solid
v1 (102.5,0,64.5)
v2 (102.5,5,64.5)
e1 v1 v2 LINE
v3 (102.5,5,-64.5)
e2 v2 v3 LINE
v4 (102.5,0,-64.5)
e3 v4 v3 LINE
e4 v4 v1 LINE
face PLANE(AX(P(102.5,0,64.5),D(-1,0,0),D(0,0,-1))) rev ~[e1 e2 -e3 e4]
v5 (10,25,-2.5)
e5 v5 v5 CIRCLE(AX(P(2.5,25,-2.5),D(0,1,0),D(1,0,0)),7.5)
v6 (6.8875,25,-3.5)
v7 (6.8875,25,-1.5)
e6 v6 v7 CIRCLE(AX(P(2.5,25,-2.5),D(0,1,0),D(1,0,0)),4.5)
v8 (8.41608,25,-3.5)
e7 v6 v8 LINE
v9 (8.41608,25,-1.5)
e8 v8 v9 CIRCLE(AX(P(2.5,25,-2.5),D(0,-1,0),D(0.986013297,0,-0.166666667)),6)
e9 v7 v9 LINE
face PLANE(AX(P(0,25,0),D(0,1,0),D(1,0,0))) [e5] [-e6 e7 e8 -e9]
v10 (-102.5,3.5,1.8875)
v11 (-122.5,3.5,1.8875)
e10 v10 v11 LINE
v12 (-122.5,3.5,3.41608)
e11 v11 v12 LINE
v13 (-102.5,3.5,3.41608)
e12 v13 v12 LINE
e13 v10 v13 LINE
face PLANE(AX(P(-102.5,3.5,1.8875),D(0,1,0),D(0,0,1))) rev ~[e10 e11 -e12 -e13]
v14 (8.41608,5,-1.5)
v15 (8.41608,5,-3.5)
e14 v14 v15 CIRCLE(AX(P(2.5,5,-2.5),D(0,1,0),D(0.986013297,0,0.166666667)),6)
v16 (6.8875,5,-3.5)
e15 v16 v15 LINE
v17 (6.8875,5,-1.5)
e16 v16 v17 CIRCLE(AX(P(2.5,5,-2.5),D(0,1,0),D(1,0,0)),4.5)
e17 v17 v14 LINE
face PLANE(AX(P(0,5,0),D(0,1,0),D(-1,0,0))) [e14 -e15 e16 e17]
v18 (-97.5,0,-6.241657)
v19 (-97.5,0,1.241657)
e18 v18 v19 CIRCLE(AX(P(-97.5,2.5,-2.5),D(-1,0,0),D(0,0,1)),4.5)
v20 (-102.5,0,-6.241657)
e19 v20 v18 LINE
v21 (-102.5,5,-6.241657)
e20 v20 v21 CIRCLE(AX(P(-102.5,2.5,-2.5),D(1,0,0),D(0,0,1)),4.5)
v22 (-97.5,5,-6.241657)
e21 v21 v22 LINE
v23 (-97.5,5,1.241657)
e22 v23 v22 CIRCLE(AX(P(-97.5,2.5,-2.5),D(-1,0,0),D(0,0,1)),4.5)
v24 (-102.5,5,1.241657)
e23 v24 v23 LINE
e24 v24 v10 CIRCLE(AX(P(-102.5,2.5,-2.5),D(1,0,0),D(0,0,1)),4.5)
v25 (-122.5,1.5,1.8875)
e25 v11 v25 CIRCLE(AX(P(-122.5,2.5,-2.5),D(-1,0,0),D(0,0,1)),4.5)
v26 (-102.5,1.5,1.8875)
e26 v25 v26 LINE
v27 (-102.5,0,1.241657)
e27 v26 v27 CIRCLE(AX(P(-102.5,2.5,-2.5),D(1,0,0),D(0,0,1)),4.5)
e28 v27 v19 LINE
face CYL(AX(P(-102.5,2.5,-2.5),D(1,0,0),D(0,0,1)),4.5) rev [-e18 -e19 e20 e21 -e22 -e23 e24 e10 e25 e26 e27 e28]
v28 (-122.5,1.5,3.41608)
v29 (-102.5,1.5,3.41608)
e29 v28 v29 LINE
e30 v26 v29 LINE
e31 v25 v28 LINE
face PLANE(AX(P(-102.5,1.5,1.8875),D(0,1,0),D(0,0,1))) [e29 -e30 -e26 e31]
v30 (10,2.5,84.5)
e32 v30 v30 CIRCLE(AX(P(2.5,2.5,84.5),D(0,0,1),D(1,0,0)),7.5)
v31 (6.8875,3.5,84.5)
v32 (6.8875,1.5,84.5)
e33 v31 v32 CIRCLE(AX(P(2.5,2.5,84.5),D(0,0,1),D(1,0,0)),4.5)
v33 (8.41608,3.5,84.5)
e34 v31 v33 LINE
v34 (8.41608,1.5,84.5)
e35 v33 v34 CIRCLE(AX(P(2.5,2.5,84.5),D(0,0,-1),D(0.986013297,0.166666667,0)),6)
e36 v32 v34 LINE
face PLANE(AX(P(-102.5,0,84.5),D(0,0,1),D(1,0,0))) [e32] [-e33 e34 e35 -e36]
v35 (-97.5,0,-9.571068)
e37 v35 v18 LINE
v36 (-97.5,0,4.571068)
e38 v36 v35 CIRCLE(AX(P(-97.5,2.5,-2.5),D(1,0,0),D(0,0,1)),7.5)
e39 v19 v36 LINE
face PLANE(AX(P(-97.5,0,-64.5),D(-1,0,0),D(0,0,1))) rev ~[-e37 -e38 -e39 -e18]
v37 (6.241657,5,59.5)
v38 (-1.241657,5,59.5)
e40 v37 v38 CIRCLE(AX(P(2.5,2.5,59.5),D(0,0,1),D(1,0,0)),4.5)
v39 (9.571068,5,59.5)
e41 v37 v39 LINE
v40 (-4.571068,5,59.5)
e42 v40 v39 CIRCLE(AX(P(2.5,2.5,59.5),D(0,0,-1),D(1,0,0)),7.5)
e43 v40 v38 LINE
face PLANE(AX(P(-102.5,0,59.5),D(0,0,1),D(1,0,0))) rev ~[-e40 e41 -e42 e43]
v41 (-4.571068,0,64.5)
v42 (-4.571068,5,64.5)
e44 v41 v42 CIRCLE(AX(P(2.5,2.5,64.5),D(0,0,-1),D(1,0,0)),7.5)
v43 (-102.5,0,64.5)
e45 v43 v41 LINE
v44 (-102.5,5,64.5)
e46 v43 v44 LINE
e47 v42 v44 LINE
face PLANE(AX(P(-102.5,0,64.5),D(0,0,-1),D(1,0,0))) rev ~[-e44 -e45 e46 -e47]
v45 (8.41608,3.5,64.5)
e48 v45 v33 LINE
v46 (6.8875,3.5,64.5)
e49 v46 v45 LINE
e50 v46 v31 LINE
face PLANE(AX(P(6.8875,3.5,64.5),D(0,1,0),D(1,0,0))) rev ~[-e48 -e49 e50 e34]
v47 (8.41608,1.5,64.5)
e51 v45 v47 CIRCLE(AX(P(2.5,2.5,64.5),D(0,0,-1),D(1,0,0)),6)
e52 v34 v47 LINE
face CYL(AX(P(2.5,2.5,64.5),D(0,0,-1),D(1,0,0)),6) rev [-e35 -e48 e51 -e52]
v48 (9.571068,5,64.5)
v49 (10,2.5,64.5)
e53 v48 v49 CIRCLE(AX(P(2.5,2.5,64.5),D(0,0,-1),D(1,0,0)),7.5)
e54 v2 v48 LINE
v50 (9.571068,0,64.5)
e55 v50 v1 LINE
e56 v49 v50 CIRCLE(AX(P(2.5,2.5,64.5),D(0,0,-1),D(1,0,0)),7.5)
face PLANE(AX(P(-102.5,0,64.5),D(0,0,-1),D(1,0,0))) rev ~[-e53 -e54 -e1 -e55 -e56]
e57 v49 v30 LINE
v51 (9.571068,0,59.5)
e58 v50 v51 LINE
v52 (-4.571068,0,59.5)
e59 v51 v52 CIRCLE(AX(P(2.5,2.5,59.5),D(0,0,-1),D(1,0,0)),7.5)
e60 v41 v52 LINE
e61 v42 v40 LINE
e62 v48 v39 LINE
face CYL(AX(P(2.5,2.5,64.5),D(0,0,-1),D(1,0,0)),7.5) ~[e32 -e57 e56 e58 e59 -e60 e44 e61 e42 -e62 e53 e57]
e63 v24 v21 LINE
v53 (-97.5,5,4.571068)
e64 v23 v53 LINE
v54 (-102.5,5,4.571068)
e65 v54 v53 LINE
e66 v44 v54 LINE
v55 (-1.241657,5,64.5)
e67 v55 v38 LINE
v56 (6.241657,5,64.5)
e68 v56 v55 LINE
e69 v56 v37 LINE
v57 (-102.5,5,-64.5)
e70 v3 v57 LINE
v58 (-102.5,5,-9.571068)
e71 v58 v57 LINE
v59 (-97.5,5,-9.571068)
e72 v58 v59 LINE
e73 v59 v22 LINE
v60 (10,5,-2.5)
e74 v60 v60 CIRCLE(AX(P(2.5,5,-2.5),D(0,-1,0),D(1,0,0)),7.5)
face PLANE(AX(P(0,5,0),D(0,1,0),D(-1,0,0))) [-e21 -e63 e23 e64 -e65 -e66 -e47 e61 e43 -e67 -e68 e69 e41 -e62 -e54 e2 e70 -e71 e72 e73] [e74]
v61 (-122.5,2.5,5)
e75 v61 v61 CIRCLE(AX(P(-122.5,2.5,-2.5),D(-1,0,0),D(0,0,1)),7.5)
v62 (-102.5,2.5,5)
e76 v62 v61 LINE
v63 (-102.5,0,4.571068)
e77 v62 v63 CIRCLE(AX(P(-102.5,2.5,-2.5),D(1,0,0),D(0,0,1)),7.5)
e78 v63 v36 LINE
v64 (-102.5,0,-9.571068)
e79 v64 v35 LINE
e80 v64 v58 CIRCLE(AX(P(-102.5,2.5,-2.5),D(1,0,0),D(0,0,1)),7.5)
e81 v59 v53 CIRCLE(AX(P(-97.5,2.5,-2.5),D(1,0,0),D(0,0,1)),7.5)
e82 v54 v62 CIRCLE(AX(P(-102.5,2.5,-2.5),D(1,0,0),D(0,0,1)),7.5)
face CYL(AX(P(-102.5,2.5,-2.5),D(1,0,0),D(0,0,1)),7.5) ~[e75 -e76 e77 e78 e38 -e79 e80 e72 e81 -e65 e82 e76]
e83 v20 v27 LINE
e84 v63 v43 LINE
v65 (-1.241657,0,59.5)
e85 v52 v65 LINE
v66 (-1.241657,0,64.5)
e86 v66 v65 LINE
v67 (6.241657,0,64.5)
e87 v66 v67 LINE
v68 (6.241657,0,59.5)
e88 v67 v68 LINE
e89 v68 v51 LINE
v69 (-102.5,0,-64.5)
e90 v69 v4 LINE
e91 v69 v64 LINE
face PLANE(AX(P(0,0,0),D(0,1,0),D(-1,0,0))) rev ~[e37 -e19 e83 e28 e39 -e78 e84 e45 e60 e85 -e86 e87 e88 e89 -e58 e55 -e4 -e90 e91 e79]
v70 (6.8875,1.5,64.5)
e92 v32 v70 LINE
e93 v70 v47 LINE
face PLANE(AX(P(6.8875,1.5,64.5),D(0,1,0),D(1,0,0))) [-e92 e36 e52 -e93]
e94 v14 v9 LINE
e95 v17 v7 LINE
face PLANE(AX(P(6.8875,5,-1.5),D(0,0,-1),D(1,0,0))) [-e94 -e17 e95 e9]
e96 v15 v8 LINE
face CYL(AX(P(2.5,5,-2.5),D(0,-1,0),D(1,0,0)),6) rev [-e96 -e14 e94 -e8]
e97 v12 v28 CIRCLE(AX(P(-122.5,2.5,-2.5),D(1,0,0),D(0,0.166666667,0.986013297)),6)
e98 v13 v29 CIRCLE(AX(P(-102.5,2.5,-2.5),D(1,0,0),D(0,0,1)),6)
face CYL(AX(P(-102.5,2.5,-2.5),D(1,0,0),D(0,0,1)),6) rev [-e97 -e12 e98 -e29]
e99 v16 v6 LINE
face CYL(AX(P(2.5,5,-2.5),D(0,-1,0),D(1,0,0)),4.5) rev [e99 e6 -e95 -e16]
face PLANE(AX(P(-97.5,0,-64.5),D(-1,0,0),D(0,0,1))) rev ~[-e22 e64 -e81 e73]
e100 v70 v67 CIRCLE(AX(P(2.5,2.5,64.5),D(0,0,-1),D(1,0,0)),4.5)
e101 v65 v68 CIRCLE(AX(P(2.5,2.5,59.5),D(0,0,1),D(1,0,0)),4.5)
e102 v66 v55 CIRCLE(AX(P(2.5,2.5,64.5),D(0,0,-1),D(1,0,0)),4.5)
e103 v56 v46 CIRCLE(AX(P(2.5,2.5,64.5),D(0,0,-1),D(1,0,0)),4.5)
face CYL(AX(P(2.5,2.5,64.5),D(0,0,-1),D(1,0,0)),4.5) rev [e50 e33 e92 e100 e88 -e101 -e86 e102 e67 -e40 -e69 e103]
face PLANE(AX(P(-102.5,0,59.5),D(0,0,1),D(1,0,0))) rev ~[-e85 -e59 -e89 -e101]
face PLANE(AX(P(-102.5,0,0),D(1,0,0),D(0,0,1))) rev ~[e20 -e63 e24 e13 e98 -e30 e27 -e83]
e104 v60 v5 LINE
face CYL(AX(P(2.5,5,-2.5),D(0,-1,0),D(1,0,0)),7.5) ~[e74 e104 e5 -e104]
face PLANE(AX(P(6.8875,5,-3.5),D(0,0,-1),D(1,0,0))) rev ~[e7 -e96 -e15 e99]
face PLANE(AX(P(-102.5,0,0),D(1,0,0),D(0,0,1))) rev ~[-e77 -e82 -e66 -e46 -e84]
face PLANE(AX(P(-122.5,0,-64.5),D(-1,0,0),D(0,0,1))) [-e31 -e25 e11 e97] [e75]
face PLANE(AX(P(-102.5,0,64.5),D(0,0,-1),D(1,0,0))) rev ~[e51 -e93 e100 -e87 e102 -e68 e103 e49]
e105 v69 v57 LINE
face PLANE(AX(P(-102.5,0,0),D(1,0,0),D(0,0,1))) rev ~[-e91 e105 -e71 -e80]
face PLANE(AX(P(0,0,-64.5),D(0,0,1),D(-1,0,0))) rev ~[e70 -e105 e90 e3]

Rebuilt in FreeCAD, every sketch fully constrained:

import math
import FreeCAD as App
import Part
import Sketcher
from FreeCAD import Vector


def add_polygon(sketch, points):
    """Adds a closed chain of lines whose ends are joined by coincident constraints."""
    first, n = sketch.GeometryCount, len(points)
    for a, b in zip(points, points[1:] + points[:1]):
        sketch.addGeometry(Part.LineSegment(App.Vector(*a, 0), App.Vector(*b, 0)), False)
    for i in range(n):
        sketch.addConstraint(Sketcher.Constraint("Coincident", first + i, 2, first + (i + 1) % n, 1))

doc = App.newDocument("Part")
body = doc.addObject("PartDesign::Body", "Body")

# Sketch on XZ plane
sketch1 = body.newObject("Sketcher::SketchObject", "Sketch")
sketch1.AttachmentSupport = (doc.getObject("XZ_Plane"), [""])
sketch1.MapMode = "FlatFace"
add_polygon(sketch1, [(-102, 64), (102, 64), (102, -64), (-102, -64)])  # lines 0-3
sketch1.addConstraint(Sketcher.Constraint("Horizontal", 0))
sketch1.addConstraint(Sketcher.Constraint("Vertical", 1))
sketch1.addConstraint(Sketcher.Constraint("Horizontal", 2))
sketch1.addConstraint(Sketcher.Constraint("Vertical", 3))
sketch1.addConstraint(Sketcher.Constraint("Symmetric", 0, 2, 2, 2, -1, 1))
sketch1.addConstraint(Sketcher.Constraint("DistanceX", 0, 1, 0, 2, 205.0))
sketch1.addConstraint(Sketcher.Constraint("DistanceY", 1, 2, 1, 1, 129.0))
pad1 = body.newObject("PartDesign::Pad", "Pad")
pad1.Profile = sketch1
pad1.Length = 5
pad1.Reversed = True

# Sketch on XZ plane
sketch2 = body.newObject("Sketcher::SketchObject", "Sketch001")
sketch2.AttachmentSupport = (doc.getObject("XZ_Plane"), [""])
sketch2.MapMode = "FlatFace"
sketch2.AttachmentOffset = App.Placement(Vector(0, 0, -5), App.Rotation())
sketch2.addGeometry(Part.Circle(Vector(2.5, -2.5, 0), Vector(0, 0, 1), 7.5), False)
sketch2.addGeometry(Part.ArcOfCircle(Part.Circle(Vector(2.5, -2.5, 0), Vector(0, 0, 1), 4.5), math.radians(13), math.radians(347)), False)
sketch2.addGeometry(Part.LineSegment(Vector(6.9, -3.5, 0), Vector(8.4, -3.5, 0)), False)
sketch2.addGeometry(Part.ArcOfCircle(Part.Circle(Vector(2.5, -2.5, 0), Vector(0, 0, 1), 6), math.radians(-9.59), math.radians(9.59)), False)
sketch2.addGeometry(Part.LineSegment(Vector(8.4, -1.5, 0), Vector(6.9, -1.5, 0)), False)
sketch2.addConstraint(Sketcher.Constraint("Coincident", 1, 2, 2, 1))
sketch2.addConstraint(Sketcher.Constraint("Coincident", 2, 2, 3, 1))
sketch2.addConstraint(Sketcher.Constraint("Coincident", 3, 2, 4, 1))
sketch2.addConstraint(Sketcher.Constraint("Coincident", 4, 2, 1, 1))
sketch2.addConstraint(Sketcher.Constraint("Horizontal", 2))
sketch2.addConstraint(Sketcher.Constraint("Horizontal", 4))
sketch2.addConstraint(Sketcher.Constraint("Coincident", 1, 3, 0, 3))
sketch2.addConstraint(Sketcher.Constraint("Coincident", 3, 3, 0, 3))
sketch2.addConstraint(Sketcher.Constraint("Vertical", 2, 2, 3, 2))
sketch2.addConstraint(Sketcher.Constraint("Diameter", 0, 15.0))
sketch2.addConstraint(Sketcher.Constraint("Radius", 3, 6.0))
sketch2.addConstraint(Sketcher.Constraint("Radius", 1, 4.5))
sketch2.addConstraint(Sketcher.Constraint("DistanceY", 1, 2, 0, 3, 1.0))
sketch2.addConstraint(Sketcher.Constraint("DistanceX", -1, 1, 0, 3, 2.5))
sketch2.addConstraint(Sketcher.Constraint("DistanceY", 0, 3, -1, 1, 2.5))
pad2 = body.newObject("PartDesign::Pad", "Pad001")
pad2.Profile = sketch2
pad2.Length = 20
pad2.Reversed = True

# Sketch on XY plane
sketch3 = body.newObject("Sketcher::SketchObject", "Sketch002")
sketch3.AttachmentSupport = (doc.getObject("XY_Plane"), [""])
sketch3.MapMode = "FlatFace"
sketch3.AttachmentOffset = App.Placement(Vector(0, 0, 64.5), App.Rotation())
sketch3.addGeometry(Part.Circle(Vector(2.5, 2.5, 0), Vector(0, 0, 1), 7.5), False)
sketch3.addGeometry(Part.ArcOfCircle(Part.Circle(Vector(2.5, 2.5, 0), Vector(0, 0, 1), 4.5), math.radians(13), math.radians(347)), False)
sketch3.addGeometry(Part.LineSegment(Vector(6.9, 3.5, 0), Vector(8.4, 3.5, 0)), False)
sketch3.addGeometry(Part.ArcOfCircle(Part.Circle(Vector(2.5, 2.5, 0), Vector(0, 0, 1), 6), math.radians(-9.59), math.radians(9.59)), False)
sketch3.addGeometry(Part.LineSegment(Vector(8.4, 1.5, 0), Vector(6.9, 1.5, 0)), False)
sketch3.addConstraint(Sketcher.Constraint("Coincident", 1, 1, 2, 1))
sketch3.addConstraint(Sketcher.Constraint("Coincident", 2, 2, 3, 2))
sketch3.addConstraint(Sketcher.Constraint("Coincident", 3, 1, 4, 1))
sketch3.addConstraint(Sketcher.Constraint("Coincident", 4, 2, 1, 2))
sketch3.addConstraint(Sketcher.Constraint("Horizontal", 2))
sketch3.addConstraint(Sketcher.Constraint("Horizontal", 4))
sketch3.addConstraint(Sketcher.Constraint("Coincident", 1, 3, 0, 3))
sketch3.addConstraint(Sketcher.Constraint("Coincident", 3, 3, 0, 3))
sketch3.addConstraint(Sketcher.Constraint("Vertical", 2, 2, 3, 1))
sketch3.addConstraint(Sketcher.Constraint("Diameter", 0, 15.0))
sketch3.addConstraint(Sketcher.Constraint("Radius", 3, 6.0))
sketch3.addConstraint(Sketcher.Constraint("Radius", 1, 4.5))
sketch3.addConstraint(Sketcher.Constraint("DistanceY", 0, 3, 1, 1, 1.0))
sketch3.addConstraint(Sketcher.Constraint("DistanceX", -1, 1, 0, 3, 2.5))
sketch3.addConstraint(Sketcher.Constraint("DistanceY", -1, 1, 0, 3, 2.5))
pad3 = body.newObject("PartDesign::Pad", "Pad002")
pad3.Profile = sketch3
pad3.Type = "TwoLengths"
pad3.Length = 20
pad3.Length2 = 5

# Sketch on YZ plane
sketch4 = body.newObject("Sketcher::SketchObject", "Sketch003")
sketch4.AttachmentSupport = (doc.getObject("YZ_Plane"), [""])
sketch4.MapMode = "FlatFace"
sketch4.AttachmentOffset = App.Placement(Vector(0, 0, -102.5), App.Rotation())
sketch4.addGeometry(Part.Circle(Vector(2.5, -2.5, 0), Vector(0, 0, 1), 7.5), False)
sketch4.addGeometry(Part.ArcOfCircle(Part.Circle(Vector(2.5, -2.5, 0), Vector(0, 0, 1), 4.5), math.radians(103), math.radians(437)), False)
sketch4.addGeometry(Part.LineSegment(Vector(3.5, 1.9, 0), Vector(3.5, 3.4, 0)), False)
sketch4.addGeometry(Part.ArcOfCircle(Part.Circle(Vector(2.5, -2.5, 0), Vector(0, 0, 1), 6), math.radians(80.41), math.radians(99.59)), False)
sketch4.addGeometry(Part.LineSegment(Vector(1.5, 3.4, 0), Vector(1.5, 1.9, 0)), False)
sketch4.addConstraint(Sketcher.Constraint("Coincident", 1, 2, 2, 1))
sketch4.addConstraint(Sketcher.Constraint("Coincident", 2, 2, 3, 1))
sketch4.addConstraint(Sketcher.Constraint("Coincident", 3, 2, 4, 1))
sketch4.addConstraint(Sketcher.Constraint("Coincident", 4, 2, 1, 1))
sketch4.addConstraint(Sketcher.Constraint("Vertical", 2))
sketch4.addConstraint(Sketcher.Constraint("Vertical", 4))
sketch4.addConstraint(Sketcher.Constraint("Coincident", 1, 3, 0, 3))
sketch4.addConstraint(Sketcher.Constraint("Coincident", 3, 3, 0, 3))
sketch4.addConstraint(Sketcher.Constraint("Horizontal", 2, 2, 3, 2))
sketch4.addConstraint(Sketcher.Constraint("Diameter", 0, 15.0))
sketch4.addConstraint(Sketcher.Constraint("Radius", 3, 6.0))
sketch4.addConstraint(Sketcher.Constraint("Radius", 1, 4.5))
sketch4.addConstraint(Sketcher.Constraint("DistanceX", 0, 3, 1, 2, 1.0))
sketch4.addConstraint(Sketcher.Constraint("DistanceX", -1, 1, 0, 3, 2.5))
sketch4.addConstraint(Sketcher.Constraint("DistanceY", 0, 3, -1, 1, 2.5))
pad4 = body.newObject("PartDesign::Pad", "Pad003")
pad4.Profile = sketch4
pad4.Type = "TwoLengths"
pad4.Length = 20
pad4.Length2 = 5
pad4.Reversed = True

doc.recompute()
